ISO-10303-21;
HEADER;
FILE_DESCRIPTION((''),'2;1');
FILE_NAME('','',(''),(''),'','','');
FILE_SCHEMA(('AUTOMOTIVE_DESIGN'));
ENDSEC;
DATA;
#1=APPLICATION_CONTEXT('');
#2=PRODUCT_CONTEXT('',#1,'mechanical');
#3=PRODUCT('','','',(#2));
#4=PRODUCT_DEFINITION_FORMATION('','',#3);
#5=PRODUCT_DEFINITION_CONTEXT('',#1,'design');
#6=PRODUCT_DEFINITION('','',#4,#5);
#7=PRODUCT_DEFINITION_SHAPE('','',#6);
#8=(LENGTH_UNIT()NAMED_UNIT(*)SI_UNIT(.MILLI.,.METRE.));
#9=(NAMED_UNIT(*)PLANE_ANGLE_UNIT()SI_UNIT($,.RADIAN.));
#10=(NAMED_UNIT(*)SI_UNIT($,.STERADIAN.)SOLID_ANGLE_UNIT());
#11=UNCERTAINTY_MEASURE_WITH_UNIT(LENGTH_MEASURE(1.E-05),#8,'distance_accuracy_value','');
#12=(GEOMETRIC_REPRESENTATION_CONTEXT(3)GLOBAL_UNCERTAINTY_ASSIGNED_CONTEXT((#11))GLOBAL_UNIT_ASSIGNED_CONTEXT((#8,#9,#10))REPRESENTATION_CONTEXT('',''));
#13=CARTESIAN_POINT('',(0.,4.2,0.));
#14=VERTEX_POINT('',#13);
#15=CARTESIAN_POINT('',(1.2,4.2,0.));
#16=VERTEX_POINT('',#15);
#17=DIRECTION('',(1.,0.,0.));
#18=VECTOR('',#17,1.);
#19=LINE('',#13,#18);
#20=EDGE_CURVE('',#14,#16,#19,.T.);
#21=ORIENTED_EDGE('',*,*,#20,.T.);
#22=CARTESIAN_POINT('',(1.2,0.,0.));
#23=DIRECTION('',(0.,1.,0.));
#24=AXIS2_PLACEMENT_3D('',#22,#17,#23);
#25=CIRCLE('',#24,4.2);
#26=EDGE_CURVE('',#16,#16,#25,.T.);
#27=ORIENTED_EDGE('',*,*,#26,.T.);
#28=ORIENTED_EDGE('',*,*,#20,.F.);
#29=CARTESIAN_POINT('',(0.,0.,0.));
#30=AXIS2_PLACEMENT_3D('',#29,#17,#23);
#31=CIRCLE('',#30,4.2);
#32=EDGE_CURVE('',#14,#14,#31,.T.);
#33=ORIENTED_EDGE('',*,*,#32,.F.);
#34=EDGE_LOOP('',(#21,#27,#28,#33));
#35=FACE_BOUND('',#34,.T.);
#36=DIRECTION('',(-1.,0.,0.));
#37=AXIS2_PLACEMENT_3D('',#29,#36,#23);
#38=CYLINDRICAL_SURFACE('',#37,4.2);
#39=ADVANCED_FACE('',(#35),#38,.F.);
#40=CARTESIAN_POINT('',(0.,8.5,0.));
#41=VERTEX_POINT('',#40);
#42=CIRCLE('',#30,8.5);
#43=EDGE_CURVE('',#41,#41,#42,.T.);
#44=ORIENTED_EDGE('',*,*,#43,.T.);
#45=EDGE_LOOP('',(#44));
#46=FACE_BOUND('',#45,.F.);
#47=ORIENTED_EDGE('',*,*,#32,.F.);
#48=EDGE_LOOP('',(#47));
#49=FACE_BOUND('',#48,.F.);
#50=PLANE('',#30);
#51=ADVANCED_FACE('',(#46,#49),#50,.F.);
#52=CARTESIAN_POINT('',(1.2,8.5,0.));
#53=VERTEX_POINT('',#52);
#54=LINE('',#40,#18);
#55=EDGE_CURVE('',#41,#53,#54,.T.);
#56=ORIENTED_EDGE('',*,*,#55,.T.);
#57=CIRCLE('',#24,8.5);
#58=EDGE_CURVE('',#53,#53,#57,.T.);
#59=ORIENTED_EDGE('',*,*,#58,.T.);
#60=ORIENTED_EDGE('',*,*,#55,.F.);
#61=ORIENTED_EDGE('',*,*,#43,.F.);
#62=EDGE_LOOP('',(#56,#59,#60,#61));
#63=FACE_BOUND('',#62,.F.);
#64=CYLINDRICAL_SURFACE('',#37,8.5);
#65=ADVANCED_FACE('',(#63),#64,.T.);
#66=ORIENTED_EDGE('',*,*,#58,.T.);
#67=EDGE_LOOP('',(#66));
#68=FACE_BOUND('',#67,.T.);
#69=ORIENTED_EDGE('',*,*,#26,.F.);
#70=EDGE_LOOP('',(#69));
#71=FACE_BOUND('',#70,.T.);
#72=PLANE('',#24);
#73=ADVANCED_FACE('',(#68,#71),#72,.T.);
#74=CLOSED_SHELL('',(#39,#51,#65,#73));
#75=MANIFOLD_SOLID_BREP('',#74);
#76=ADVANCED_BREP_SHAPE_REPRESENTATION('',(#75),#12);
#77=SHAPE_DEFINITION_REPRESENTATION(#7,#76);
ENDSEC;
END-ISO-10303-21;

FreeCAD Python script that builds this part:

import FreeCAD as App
import Part
import Sketcher
from FreeCAD import Vector
Q = App.Units.Quantity

doc = App.newDocument("Part")
body = doc.addObject("PartDesign::Body", "Body")

sketch1 = body.newObject("Sketcher::SketchObject", "Sketch")
sketch1.AttachmentSupport = (doc.getObject("YZ_Plane"), [""])
sketch1.MapMode = "FlatFace"
sketch1.addGeometry([
    Part.Circle(Vector(0, 0, 0), Vector(0, 0, 1), 8.5),
    Part.Circle(Vector(0, 0, 0), Vector(0, 0, 1), 4.2),
], False)
sketch1.addConstraint([
    Sketcher.Constraint("Coincident", 0, 3, -1, 1),
    Sketcher.Constraint("Coincident", 1, 3, -1, 1),
    Sketcher.Constraint("Diameter", 0, Q("17 mm")),
    Sketcher.Constraint("Diameter", 1, Q("8.4 mm")),
])
pad1 = body.newObject("PartDesign::Pad", "Pad")
pad1.Profile = sketch1
pad1.Length = 1.2

doc.recompute()
